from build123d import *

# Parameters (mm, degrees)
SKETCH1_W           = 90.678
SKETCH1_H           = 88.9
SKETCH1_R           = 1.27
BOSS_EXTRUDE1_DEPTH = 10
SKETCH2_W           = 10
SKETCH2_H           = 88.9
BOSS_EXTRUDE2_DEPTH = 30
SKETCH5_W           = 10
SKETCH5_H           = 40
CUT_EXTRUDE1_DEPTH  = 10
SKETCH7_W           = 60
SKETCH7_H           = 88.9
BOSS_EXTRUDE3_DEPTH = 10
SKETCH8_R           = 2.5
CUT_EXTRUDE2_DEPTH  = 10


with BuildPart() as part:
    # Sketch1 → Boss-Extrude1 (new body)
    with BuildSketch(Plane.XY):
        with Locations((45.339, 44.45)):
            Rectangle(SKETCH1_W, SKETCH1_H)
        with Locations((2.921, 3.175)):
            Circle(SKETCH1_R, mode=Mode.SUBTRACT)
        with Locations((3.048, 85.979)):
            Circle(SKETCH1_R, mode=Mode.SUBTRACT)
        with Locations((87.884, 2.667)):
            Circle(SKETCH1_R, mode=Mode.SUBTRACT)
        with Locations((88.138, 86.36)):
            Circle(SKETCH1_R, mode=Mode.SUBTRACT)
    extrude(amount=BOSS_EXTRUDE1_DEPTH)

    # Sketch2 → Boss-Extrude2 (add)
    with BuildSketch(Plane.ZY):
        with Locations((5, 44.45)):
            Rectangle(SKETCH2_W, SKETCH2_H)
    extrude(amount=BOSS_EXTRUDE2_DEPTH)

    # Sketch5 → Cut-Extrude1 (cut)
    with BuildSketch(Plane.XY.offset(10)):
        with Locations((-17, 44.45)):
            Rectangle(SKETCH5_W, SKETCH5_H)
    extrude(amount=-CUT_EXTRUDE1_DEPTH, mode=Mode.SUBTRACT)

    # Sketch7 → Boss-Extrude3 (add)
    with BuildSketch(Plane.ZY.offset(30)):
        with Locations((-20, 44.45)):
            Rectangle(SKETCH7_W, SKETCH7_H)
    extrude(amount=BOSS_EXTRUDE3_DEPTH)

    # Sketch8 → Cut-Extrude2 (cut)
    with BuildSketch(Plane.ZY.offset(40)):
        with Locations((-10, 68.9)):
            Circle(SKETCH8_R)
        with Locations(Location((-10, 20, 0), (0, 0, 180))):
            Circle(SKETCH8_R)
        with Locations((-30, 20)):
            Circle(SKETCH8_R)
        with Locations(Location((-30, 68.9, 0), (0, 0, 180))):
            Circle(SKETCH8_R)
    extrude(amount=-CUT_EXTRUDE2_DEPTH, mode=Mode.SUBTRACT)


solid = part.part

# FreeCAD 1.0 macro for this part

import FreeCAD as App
import Part
import Sketcher

V = App.Vector

doc = App.newDocument("Part")
body = doc.addObject("PartDesign::Body", "Body")

# Sketch on XY plane
sketch1 = body.newObject("Sketcher::SketchObject", "Sketch")
sketch1.AttachmentSupport = (doc.getObject("XY_Plane"), [""])
sketch1.MapMode = "FlatFace"
sketch1.addGeometry(Part.LineSegment(V(0, 88.9, 0), V(0, 0, 0)), False)
sketch1.addGeometry(Part.LineSegment(V(0, 0, 0), V(90.678, 0, 0)), False)
sketch1.addGeometry(Part.LineSegment(V(90.678, 0, 0), V(90.678, 88.9, 0)), False)
sketch1.addGeometry(Part.LineSegment(V(90.678, 88.9, 0), V(0, 88.9, 0)), False)
sketch1.addGeometry(Part.Circle(V(2.921, 3.175, 0), V(0, 0, 1), 1.27), False)
sketch1.addGeometry(Part.Circle(V(87.884, 2.667, 0), V(0, 0, 1), 1.27), False)
sketch1.addGeometry(Part.Circle(V(3.048, 85.979, 0), V(0, 0, 1), 1.27), False)
sketch1.addGeometry(Part.Circle(V(88.138, 86.36, 0), V(0, 0, 1), 1.27), False)
sketch1.addConstraint(Sketcher.Constraint("Coincident", 0, 2, 1, 1))
sketch1.addConstraint(Sketcher.Constraint("Coincident", 1, 2, 2, 1))
sketch1.addConstraint(Sketcher.Constraint("Coincident", 2, 2, 3, 1))
sketch1.addConstraint(Sketcher.Constraint("Coincident", 3, 2, 0, 1))
sketch1.addConstraint(Sketcher.Constraint("Vertical", 0))
sketch1.addConstraint(Sketcher.Constraint("Horizontal", 1))
sketch1.addConstraint(Sketcher.Constraint("Vertical", 2))
sketch1.addConstraint(Sketcher.Constraint("Horizontal", 3))
sketch1.addConstraint(Sketcher.Constraint("Coincident", 0, 2, -1, 1))
sketch1.addConstraint(Sketcher.Constraint("Equal", 4, 5))
sketch1.addConstraint(Sketcher.Constraint("Equal", 5, 6))
sketch1.addConstraint(Sketcher.Constraint("Equal", 6, 7))
sketch1.addConstraint(Sketcher.Constraint("Diameter", 4, 2.54))
sketch1.addConstraint(Sketcher.Constraint("DistanceY", 0, 2, 0, 1, 88.9))
sketch1.addConstraint(Sketcher.Constraint("DistanceX", 1, 1, 1, 2, 90.678))
sketch1.addConstraint(Sketcher.Constraint("DistanceY", -1, 1, 7, 3, 86.36))
sketch1.addConstraint(Sketcher.Constraint("DistanceX", 6, 3, 7, 3, 85.09))
sketch1.addConstraint(Sketcher.Constraint("DistanceX", 7, 3, 1, 2, 2.54))
sketch1.addConstraint(Sketcher.Constraint("DistanceX", -1, 1, 4, 3, 2.921))
sketch1.addConstraint(Sketcher.Constraint("DistanceY", -1, 1, 4, 3, 3.175))
sketch1.addConstraint(Sketcher.Constraint("DistanceX", -1, 1, 5, 3, 87.884))
sketch1.addConstraint(Sketcher.Constraint("DistanceY", -1, 1, 5, 3, 2.667))
sketch1.addConstraint(Sketcher.Constraint("DistanceY", -1, 1, 6, 3, 85.979))
pad1 = body.newObject("PartDesign::Pad", "Pad")
pad1.Profile = sketch1
pad1.Length = 10

# Sketch on YZ plane
sketch2 = body.newObject("Sketcher::SketchObject", "Sketch001")
sketch2.AttachmentSupport = (doc.getObject("YZ_Plane"), [""])
sketch2.MapMode = "FlatFace"
sketch2.addGeometry(Part.LineSegment(V(88.9, 0, 0), V(0, 0, 0)), False)
sketch2.addGeometry(Part.LineSegment(V(0, 0, 0), V(0, 10, 0)), False)
sketch2.addGeometry(Part.LineSegment(V(0, 10, 0), V(88.9, 10, 0)), False)
sketch2.addGeometry(Part.LineSegment(V(88.9, 10, 0), V(88.9, 0, 0)), False)
sketch2.addConstraint(Sketcher.Constraint("Coincident", 0, 2, 1, 1))
sketch2.addConstraint(Sketcher.Constraint("Coincident", 1, 2, 2, 1))
sketch2.addConstraint(Sketcher.Constraint("Coincident", 2, 2, 3, 1))
sketch2.addConstraint(Sketcher.Constraint("Coincident", 3, 2, 0, 1))
sketch2.addConstraint(Sketcher.Constraint("Horizontal", 0))
sketch2.addConstraint(Sketcher.Constraint("Vertical", 1))
sketch2.addConstraint(Sketcher.Constraint("Horizontal", 2))
sketch2.addConstraint(Sketcher.Constraint("Vertical", 3))
sketch2.addConstraint(Sketcher.Constraint("Coincident", 0, 2, -1, 1))
sketch2.addConstraint(Sketcher.Constraint("DistanceY", 1, 1, 1, 2, 10.0))
sketch2.addConstraint(Sketcher.Constraint("DistanceX", 0, 2, 0, 1, 88.9))
pad2 = body.newObject("PartDesign::Pad", "Pad001")
pad2.Profile = sketch2
pad2.Length = 30
pad2.Reversed = True

# Sketch on XY plane
sketch3 = body.newObject("Sketcher::SketchObject", "Sketch002")
sketch3.AttachmentSupport = (doc.getObject("XY_Plane"), [""])
sketch3.MapMode = "FlatFace"
sketch3.AttachmentOffset = App.Placement(V(0, 0, 10), App.Rotation())
sketch3.addGeometry(Part.LineSegment(V(-22, 64.45, 0), V(-22, 24.45, 0)), False)
sketch3.addGeometry(Part.LineSegment(V(-22, 24.45, 0), V(-12, 24.45, 0)), False)
sketch3.addGeometry(Part.LineSegment(V(-12, 24.45, 0), V(-12, 64.45, 0)), False)
sketch3.addGeometry(Part.LineSegment(V(-12, 64.45, 0), V(-22, 64.45, 0)), False)
sketch3.addConstraint(Sketcher.Constraint("Coincident", 0, 2, 1, 1))
sketch3.addConstraint(Sketcher.Constraint("Coincident", 1, 2, 2, 1))
sketch3.addConstraint(Sketcher.Constraint("Coincident", 2, 2, 3, 1))
sketch3.addConstraint(Sketcher.Constraint("Coincident", 3, 2, 0, 1))
sketch3.addConstraint(Sketcher.Constraint("Vertical", 0))
sketch3.addConstraint(Sketcher.Constraint("Horizontal", 1))
sketch3.addConstraint(Sketcher.Constraint("Vertical", 2))
sketch3.addConstraint(Sketcher.Constraint("Horizontal", 3))
sketch3.addConstraint(Sketcher.Constraint("DistanceX", 1, 1, 1, 2, 10.0))
sketch3.addConstraint(Sketcher.Constraint("DistanceY", 0, 2, 0, 1, 40.0))
sketch3.addConstraint(Sketcher.Constraint("DistanceX", 0, 2, -1, 1, 22.0))
sketch3.addConstraint(Sketcher.Constraint("DistanceY", -1, 1, 0, 2, 24.45))
pocket1 = body.newObject("PartDesign::Pocket", "Pocket")
pocket1.Profile = sketch3
pocket1.Length = 10

# Sketch on YZ plane
sketch4 = body.newObject("Sketcher::SketchObject", "Sketch003")
sketch4.AttachmentSupport = (doc.getObject("YZ_Plane"), [""])
sketch4.MapMode = "FlatFace"
sketch4.AttachmentOffset = App.Placement(V(0, 0, -30), App.Rotation())
sketch4.addGeometry(Part.LineSegment(V(88.9, -50, 0), V(0, -50, 0)), False)
sketch4.addGeometry(Part.LineSegment(V(0, -50, 0), V(0, 10, 0)), False)
sketch4.addGeometry(Part.LineSegment(V(0, 10, 0), V(88.9, 10, 0)), False)
sketch4.addGeometry(Part.LineSegment(V(88.9, 10, 0), V(88.9, -50, 0)), False)
sketch4.addConstraint(Sketcher.Constraint("Coincident", 0, 2, 1, 1))
sketch4.addConstraint(Sketcher.Constraint("Coincident", 1, 2, 2, 1))
sketch4.addConstraint(Sketcher.Constraint("Coincident", 2, 2, 3, 1))
sketch4.addConstraint(Sketcher.Constraint("Coincident", 3, 2, 0, 1))
sketch4.addConstraint(Sketcher.Constraint("Horizontal", 0))
sketch4.addConstraint(Sketcher.Constraint("Vertical", 1))
sketch4.addConstraint(Sketcher.Constraint("Horizontal", 2))
sketch4.addConstraint(Sketcher.Constraint("Vertical", 3))
sketch4.addConstraint(Sketcher.Constraint("PointOnObject", 0, 2, -2))
sketch4.addConstraint(Sketcher.Constraint("DistanceY", 1, 1, 1, 2, 60.0))
sketch4.addConstraint(Sketcher.Constraint("DistanceX", 0, 2, 0, 1, 88.9))
sketch4.addConstraint(Sketcher.Constraint("DistanceY", 0, 2, -1, 1, 50.0))
pad3 = body.newObject("PartDesign::Pad", "Pad002")
pad3.Profile = sketch4
pad3.Length = 10
pad3.Reversed = True

# Sketch on YZ plane
sketch5 = body.newObject("Sketcher::SketchObject", "Sketch004")
sketch5.AttachmentSupport = (doc.getObject("YZ_Plane"), [""])
sketch5.MapMode = "FlatFace"
sketch5.AttachmentOffset = App.Placement(V(0, 0, -40), App.Rotation())
sketch5.addGeometry(Part.Circle(V(68.9, -10, 0), V(0, 0, 1), 2.5), False)
sketch5.addGeometry(Part.Circle(V(20, -10, 0), V(0, 0, 1), 2.5), False)
sketch5.addGeometry(Part.Circle(V(20, -30, 0), V(0, 0, 1), 2.5), False)
sketch5.addGeometry(Part.Circle(V(68.9, -30, 0), V(0, 0, 1), 2.5), False)
sketch5.addConstraint(Sketcher.Constraint("Equal", 0, 1))
sketch5.addConstraint(Sketcher.Constraint("Equal", 1, 2))
sketch5.addConstraint(Sketcher.Constraint("Equal", 2, 3))
sketch5.addConstraint(Sketcher.Constraint("Horizontal", 0, 3, 1, 3))
sketch5.addConstraint(Sketcher.Constraint("Horizontal", 2, 3, 3, 3))
sketch5.addConstraint(Sketcher.Constraint("Vertical", 1, 3, 2, 3))
sketch5.addConstraint(Sketcher.Constraint("Vertical", 0, 3, 3, 3))
sketch5.addConstraint(Sketcher.Constraint("Diameter", 0, 5.0))
sketch5.addConstraint(Sketcher.Constraint("DistanceY", 0, 3, -1, 1, 10.0))
sketch5.addConstraint(Sketcher.Constraint("DistanceX", -1, 1, 1, 3, 20.0))
sketch5.addConstraint(Sketcher.Constraint("DistanceY", 2, 3, -1, 1, 30.0))
sketch5.addConstraint(Sketcher.Constraint("DistanceX", -1, 1, 0, 3, 68.9))
pocket2 = body.newObject("PartDesign::Pocket", "Pocket001")
pocket2.Profile = sketch5
pocket2.Length = 10
pocket2.Reversed = True

doc.recompute()
